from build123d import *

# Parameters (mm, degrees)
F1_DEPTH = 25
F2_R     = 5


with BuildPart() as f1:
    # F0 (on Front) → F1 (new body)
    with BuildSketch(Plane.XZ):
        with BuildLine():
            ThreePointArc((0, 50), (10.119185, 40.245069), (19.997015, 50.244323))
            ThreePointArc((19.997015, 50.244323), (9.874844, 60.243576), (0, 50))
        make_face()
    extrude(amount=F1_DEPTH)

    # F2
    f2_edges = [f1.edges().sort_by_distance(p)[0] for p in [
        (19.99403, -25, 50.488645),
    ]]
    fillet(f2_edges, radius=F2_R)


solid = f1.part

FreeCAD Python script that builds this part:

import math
import FreeCAD as App
import Part
import Sketcher

V = App.Vector
Q = App.Units.Quantity


def edges_at(feature, points):
    """Names of the edges that pass closest to the given points."""
    edges = feature.Shape.Edges
    near = lambda p: min(range(len(edges)), key=lambda i: edges[i].distToShape(Part.Vertex(*p))[0])
    return sorted({f"Edge{near(p) + 1}" for p in points})

doc = App.newDocument("Part")
body = doc.addObject("PartDesign::Body", "Body")

sketch1 = body.newObject("Sketcher::SketchObject", "Sketch")
sketch1.AttachmentSupport = (doc.getObject("XZ_Plane"), [""])
sketch1.MapMode = "FlatFace"
sketch1.addGeometry([
    Part.ArcOfCircle(Part.Circle(V(10, 50, 0), V(0, 0, 1), 10), math.radians(-179), math.radians(0)),
    Part.ArcOfCircle(Part.Circle(V(10, 50, 0), V(0, 0, 1), 10), math.radians(0), math.radians(181)),
], False)
sketch1.addConstraint([
    Sketcher.Constraint("Tangent", 0, 1, 1, 2),
    Sketcher.Constraint("Coincident", 1, 1, 0, 2),
    Sketcher.Constraint("PointOnObject", 0, 1, -2),
    Sketcher.Constraint("Horizontal", 0, 3, 1, 1),
    Sketcher.Constraint("Radius", 0, Q("10 mm")),
    Sketcher.Constraint("DistanceY", -1, 1, 0, 1, Q("50 mm")),
    Sketcher.Constraint("DistanceX", -1, 1, 0, 3, Q("9.997015 mm")),
])
pad1 = body.newObject("PartDesign::Pad", "Pad")
pad1.Profile = sketch1
pad1.Length = 25
doc.recompute()

fillet = body.newObject("PartDesign::Fillet", "Fillet")
fillet.Base = (pad1, edges_at(pad1, [(9.875, -25, 60.244)]))
fillet.Radius = 5

doc.recompute()
